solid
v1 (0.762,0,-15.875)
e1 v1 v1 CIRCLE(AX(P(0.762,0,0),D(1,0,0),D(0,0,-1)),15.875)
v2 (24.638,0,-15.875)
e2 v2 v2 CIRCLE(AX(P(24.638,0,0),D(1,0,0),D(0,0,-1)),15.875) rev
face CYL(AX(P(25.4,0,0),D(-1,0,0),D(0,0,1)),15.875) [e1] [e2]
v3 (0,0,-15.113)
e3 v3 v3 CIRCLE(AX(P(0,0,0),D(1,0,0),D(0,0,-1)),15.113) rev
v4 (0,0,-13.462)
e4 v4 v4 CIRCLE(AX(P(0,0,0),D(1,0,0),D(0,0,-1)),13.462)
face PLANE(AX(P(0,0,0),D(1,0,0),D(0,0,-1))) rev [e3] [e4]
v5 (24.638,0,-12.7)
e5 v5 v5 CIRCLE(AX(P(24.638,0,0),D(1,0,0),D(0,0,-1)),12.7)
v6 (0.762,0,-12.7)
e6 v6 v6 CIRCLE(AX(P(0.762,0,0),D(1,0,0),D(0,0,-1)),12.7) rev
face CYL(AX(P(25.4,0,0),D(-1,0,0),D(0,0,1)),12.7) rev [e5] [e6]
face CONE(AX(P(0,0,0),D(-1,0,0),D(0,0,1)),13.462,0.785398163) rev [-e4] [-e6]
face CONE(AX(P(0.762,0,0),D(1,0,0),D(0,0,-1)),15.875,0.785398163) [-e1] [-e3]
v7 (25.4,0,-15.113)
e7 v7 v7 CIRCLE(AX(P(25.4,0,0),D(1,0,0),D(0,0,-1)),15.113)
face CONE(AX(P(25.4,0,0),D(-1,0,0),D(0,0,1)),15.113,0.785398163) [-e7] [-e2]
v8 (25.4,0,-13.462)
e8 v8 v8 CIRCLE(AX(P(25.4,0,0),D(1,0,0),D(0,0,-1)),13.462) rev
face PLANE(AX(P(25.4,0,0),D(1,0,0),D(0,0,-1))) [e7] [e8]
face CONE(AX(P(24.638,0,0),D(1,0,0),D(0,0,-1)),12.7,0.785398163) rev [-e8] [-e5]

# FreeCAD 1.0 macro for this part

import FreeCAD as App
import Part
import Sketcher
from FreeCAD import Vector
Q = App.Units.Quantity


def edges_at(feature, points):
    """Names of the edges that pass closest to the given points."""
    edges = feature.Shape.Edges
    near = lambda p: min(range(len(edges)), key=lambda i: edges[i].distToShape(Part.Vertex(*p))[0])
    return sorted({f"Edge{near(p) + 1}" for p in points})

doc = App.newDocument("Part")
params = doc.addObject("Spreadsheet::Sheet", "Params")
for row, (alias, value) in enumerate([
    ("sketch1_diameter", "1 in"),
    ("sketch1_diameter2", "1.25 in"),
    ("pad1_length", "1 in"),
    ("chamfer_size", "0.03 in"),
], start=1):
    params.set(f"A{row}", alias)
    params.set(f"B{row}", "=" + value)
    params.setAlias(f"B{row}", alias)

body = doc.addObject("PartDesign::Body", "Body")

sketch1 = body.newObject("Sketcher::SketchObject", "Sketch")
sketch1.AttachmentSupport = (doc.getObject("YZ_Plane"), [""])
sketch1.MapMode = "FlatFace"
sketch1.addGeometry([
    Part.Circle(Vector(0, 0, 0), Vector(0, 0, 1), 16),
    Part.Circle(Vector(0, 0, 0), Vector(0, 0, 1), 13),
], False)
sketch1.addConstraint([
    Sketcher.Constraint("Coincident", 0, 3, -1, 1),
    Sketcher.Constraint("Coincident", 1, 3, -1, 1),
    Sketcher.Constraint("Diameter", 1, Q("1 in")),
    Sketcher.Constraint("Diameter", 0, Q("1.25 in")),
])
sketch1.setExpression("Constraints[2]", "Params.sketch1_diameter")
sketch1.setExpression("Constraints[3]", "Params.sketch1_diameter2")
pad1 = body.newObject("PartDesign::Pad", "Pad")
pad1.Profile = sketch1
pad1.setExpression("Length", "Params.pad1_length")
doc.recompute()

chamfer = body.newObject("PartDesign::Chamfer", "Chamfer")
chamfer.Base = (pad1, edges_at(pad1, [
    (0, 0, 15.875),
    (25.4, 0, 15.875),
    (0, 0, 12.7),
    (25.4, 0, 12.7),
]))
chamfer.setExpression("Size", "Params.chamfer_size")

doc.recompute()
